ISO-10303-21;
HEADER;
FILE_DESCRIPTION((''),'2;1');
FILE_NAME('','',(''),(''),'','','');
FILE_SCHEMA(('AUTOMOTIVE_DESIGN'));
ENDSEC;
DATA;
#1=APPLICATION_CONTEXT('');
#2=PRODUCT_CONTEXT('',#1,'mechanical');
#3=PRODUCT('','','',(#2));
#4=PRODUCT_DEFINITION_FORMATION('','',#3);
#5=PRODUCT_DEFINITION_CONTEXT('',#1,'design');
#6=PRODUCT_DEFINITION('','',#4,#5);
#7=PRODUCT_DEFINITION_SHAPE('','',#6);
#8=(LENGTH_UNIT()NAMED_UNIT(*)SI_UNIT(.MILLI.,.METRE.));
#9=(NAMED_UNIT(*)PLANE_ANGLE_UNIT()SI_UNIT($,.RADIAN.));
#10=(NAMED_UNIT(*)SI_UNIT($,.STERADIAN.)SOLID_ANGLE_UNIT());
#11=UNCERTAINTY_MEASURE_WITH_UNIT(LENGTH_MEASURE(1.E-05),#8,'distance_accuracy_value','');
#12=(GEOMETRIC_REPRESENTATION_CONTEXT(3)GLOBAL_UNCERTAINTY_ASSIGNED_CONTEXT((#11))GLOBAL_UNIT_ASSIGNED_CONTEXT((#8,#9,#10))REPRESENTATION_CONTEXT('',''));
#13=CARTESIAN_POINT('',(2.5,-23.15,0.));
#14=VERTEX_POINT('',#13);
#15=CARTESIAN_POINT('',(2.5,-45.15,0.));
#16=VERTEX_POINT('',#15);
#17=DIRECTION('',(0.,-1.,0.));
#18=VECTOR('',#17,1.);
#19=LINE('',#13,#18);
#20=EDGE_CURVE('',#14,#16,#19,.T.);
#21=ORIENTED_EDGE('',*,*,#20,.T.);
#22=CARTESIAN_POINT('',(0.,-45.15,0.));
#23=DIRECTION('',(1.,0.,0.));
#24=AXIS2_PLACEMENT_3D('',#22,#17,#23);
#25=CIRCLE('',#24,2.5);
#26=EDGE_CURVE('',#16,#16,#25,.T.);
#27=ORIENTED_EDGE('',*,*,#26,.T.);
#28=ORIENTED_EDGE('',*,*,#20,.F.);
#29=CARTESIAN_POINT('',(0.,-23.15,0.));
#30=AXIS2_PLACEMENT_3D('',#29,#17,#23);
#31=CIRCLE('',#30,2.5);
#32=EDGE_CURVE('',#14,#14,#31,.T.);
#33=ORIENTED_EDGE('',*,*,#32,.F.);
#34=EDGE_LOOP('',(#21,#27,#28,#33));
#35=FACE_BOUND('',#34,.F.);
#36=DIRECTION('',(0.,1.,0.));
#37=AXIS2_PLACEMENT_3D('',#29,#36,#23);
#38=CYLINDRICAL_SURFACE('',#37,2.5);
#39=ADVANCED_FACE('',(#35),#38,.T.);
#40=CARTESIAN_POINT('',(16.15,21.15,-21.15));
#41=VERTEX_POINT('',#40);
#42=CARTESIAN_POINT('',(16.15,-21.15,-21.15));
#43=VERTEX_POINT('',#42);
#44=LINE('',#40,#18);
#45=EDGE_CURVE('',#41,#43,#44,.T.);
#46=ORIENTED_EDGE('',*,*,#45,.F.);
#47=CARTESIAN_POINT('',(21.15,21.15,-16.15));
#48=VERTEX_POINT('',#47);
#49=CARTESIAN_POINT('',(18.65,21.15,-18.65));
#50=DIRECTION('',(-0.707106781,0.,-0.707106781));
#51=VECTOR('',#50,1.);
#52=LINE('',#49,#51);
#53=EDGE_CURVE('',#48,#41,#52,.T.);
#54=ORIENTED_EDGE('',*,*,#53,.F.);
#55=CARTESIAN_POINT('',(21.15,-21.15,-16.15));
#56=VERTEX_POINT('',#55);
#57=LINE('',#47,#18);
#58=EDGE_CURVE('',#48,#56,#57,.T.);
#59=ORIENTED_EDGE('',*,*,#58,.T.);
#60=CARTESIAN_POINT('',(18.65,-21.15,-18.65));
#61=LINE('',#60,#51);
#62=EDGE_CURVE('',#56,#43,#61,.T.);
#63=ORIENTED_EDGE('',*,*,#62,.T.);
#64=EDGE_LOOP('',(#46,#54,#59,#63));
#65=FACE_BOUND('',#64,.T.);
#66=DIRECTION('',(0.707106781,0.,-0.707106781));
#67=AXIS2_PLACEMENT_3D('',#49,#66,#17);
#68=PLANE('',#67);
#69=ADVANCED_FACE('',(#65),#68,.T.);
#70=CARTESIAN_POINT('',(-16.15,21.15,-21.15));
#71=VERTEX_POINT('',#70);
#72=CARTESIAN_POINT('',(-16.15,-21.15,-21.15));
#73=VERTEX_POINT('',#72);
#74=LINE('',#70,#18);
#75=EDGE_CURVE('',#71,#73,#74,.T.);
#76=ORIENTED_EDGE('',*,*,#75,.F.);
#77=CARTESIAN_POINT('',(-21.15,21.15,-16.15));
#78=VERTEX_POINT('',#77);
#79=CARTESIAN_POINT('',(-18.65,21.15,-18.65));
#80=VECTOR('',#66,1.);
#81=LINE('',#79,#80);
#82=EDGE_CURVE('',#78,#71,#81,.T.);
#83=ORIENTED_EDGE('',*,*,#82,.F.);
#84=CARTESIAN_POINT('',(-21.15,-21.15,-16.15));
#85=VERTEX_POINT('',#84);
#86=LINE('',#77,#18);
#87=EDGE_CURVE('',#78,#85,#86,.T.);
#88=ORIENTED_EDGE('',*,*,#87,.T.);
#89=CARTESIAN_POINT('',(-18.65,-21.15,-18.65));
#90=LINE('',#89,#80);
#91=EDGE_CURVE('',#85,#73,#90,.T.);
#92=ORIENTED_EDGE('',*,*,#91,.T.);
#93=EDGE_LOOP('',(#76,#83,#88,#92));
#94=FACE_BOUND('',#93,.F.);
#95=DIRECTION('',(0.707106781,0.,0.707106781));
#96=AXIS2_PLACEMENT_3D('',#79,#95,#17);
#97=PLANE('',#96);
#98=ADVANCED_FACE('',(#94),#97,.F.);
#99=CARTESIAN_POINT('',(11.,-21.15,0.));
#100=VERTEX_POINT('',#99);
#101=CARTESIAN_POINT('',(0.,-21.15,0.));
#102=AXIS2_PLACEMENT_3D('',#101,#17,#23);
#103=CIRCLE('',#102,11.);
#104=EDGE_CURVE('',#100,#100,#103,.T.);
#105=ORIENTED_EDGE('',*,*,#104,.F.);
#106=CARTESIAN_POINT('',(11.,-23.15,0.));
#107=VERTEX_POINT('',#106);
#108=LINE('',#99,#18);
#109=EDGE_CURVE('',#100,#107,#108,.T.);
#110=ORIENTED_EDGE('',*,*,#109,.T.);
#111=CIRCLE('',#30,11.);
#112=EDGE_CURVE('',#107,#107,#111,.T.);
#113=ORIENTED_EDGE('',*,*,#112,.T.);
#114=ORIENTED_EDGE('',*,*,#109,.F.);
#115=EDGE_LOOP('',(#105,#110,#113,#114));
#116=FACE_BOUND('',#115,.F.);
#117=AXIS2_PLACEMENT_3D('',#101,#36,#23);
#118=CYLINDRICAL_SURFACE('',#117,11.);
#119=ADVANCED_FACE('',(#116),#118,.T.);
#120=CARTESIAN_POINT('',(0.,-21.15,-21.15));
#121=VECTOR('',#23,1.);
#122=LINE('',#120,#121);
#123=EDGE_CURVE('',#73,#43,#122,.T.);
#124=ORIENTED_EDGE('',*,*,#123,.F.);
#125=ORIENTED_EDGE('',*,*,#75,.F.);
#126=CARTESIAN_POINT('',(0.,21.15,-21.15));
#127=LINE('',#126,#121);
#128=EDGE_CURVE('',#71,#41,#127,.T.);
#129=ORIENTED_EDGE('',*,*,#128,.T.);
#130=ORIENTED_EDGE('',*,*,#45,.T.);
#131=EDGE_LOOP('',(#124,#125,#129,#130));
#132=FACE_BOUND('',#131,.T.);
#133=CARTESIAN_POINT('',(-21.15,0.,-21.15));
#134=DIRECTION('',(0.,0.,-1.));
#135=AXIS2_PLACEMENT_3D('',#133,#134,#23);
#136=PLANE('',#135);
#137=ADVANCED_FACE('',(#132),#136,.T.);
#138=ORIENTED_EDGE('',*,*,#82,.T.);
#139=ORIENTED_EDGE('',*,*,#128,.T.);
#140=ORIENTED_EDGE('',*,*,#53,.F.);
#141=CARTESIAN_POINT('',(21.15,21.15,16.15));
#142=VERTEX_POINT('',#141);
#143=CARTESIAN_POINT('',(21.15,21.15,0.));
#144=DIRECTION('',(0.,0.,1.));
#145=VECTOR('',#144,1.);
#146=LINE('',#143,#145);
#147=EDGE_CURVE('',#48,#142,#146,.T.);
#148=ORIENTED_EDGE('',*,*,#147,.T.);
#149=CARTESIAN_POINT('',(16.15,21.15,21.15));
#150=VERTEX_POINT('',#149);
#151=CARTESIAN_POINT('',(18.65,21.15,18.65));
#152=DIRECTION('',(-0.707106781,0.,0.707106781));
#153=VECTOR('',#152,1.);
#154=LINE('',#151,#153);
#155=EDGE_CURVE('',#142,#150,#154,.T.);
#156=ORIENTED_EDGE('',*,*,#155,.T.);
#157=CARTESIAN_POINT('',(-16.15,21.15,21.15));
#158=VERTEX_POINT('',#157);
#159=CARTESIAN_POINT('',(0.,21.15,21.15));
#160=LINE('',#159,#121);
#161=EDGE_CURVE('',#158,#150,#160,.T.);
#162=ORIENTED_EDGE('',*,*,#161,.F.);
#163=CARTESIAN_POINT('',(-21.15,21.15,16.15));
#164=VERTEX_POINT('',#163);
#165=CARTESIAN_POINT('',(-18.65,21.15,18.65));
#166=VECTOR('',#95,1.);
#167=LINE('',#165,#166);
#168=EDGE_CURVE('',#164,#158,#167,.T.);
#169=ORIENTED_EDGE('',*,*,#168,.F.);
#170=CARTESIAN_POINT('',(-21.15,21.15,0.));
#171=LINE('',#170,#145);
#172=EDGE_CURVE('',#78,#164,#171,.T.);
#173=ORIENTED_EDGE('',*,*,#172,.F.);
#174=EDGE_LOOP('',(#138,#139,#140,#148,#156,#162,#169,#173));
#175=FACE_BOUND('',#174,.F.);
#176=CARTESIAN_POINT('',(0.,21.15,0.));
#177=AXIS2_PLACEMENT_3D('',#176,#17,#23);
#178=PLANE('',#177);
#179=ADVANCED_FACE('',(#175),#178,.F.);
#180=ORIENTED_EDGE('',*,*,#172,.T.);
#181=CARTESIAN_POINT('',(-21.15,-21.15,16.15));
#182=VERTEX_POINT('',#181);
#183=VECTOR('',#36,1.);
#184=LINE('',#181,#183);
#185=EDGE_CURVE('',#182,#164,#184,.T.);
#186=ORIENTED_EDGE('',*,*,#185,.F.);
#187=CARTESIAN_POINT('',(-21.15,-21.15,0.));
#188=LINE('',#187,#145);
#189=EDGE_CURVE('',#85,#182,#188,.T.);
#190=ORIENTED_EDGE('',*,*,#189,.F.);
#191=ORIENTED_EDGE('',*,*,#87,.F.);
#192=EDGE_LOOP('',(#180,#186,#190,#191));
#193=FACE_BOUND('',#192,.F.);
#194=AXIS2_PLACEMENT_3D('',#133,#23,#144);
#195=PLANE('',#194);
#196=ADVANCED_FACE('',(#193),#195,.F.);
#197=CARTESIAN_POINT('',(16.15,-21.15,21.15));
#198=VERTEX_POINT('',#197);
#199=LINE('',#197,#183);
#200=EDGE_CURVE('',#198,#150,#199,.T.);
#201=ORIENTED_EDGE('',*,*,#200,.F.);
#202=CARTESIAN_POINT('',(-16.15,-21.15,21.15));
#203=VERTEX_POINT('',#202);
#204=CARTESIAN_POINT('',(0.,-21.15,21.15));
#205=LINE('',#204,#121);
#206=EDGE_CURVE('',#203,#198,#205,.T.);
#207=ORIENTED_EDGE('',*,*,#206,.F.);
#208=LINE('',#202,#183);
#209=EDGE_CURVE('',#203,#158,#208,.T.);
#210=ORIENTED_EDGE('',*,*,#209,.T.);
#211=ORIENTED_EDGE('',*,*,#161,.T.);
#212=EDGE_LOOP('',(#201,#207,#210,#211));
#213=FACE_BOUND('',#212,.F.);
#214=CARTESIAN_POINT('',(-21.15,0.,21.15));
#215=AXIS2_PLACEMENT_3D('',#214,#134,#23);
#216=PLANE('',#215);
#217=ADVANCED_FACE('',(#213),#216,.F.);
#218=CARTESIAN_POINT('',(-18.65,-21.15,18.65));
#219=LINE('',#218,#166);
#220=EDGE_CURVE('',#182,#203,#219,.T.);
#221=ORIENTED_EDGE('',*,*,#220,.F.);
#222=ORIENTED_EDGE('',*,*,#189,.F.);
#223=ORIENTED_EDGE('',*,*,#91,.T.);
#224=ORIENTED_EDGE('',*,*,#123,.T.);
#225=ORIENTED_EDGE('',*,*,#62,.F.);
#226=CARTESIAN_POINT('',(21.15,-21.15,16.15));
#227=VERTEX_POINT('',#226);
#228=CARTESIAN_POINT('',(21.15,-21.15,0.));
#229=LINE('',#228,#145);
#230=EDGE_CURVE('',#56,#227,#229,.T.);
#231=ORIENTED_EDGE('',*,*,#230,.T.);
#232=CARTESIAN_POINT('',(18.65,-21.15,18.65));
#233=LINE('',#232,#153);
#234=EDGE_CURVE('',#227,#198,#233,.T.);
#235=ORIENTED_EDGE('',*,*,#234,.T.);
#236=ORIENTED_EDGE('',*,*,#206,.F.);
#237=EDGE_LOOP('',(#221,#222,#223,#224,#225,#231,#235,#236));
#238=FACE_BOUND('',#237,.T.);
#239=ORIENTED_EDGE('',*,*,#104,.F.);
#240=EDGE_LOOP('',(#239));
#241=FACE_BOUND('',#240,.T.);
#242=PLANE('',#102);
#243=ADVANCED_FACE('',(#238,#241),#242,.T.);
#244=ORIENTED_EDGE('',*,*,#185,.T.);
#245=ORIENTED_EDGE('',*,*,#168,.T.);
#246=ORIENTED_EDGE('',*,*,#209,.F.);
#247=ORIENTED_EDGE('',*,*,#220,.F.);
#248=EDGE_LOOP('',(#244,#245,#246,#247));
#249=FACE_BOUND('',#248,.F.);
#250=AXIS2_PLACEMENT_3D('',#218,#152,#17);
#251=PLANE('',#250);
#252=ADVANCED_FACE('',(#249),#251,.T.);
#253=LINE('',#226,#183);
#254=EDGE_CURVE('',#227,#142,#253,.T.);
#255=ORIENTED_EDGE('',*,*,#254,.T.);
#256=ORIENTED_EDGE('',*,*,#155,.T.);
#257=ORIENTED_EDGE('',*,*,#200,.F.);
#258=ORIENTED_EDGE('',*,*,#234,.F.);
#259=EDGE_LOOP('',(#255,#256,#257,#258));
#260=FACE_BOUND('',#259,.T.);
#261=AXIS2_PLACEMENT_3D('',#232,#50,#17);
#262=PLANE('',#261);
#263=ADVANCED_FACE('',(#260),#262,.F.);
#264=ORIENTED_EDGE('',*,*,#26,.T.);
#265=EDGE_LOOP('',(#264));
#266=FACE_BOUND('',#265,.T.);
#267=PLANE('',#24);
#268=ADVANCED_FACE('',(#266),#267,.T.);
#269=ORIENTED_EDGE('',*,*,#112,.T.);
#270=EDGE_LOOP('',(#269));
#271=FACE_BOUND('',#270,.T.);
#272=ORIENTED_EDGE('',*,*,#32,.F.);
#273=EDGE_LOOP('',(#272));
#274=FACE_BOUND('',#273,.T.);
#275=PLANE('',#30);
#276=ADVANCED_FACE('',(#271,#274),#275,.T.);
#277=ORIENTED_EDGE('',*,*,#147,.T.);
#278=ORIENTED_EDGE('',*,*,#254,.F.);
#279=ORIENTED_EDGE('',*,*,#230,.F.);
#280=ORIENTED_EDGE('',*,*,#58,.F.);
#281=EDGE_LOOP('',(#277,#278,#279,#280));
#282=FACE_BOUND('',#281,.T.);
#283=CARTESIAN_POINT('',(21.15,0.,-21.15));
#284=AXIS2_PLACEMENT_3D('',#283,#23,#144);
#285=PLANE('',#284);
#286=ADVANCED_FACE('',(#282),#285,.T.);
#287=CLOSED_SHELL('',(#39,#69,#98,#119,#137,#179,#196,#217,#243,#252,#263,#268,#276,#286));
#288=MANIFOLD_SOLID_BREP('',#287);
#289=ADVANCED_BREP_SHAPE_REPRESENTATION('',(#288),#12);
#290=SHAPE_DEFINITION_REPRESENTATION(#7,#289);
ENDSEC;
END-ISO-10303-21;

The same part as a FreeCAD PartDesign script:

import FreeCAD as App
import Part
import Sketcher


def edges_at(feature, points):
    """Names of the edges that pass closest to the given points."""
    edges = feature.Shape.Edges
    near = lambda p: min(range(len(edges)), key=lambda i: edges[i].distToShape(Part.Vertex(*p))[0])
    return sorted({f"Edge{near(p) + 1}" for p in points})

doc = App.newDocument("Part")
params = doc.addObject("Spreadsheet::Sheet", "Params")
for row, (alias, value) in enumerate([
    ("sketch1_width", "42.3 mm"),
    ("pad1_length", "42.3 mm"),
    ("chamfer_size", "5 mm"),
    ("sketch2_diameter", "22 mm"),
    ("pad2_length", "2 mm"),
    ("sketch3_diameter", "5 mm"),
    ("pad3_length", "22 mm"),
], start=1):
    params.set(f"A{row}", alias)
    params.set(f"B{row}", "=" + value)
    params.setAlias(f"B{row}", alias)

body = doc.addObject("PartDesign::Body", "Body")

sketch1 = body.newObject("Sketcher::SketchObject", "Sketch")
sketch1.AttachmentSupport = (doc.getObject("XZ_Plane"), [""])
sketch1.MapMode = "FlatFace"
sketch1.addGeometry(Part.LineSegment(App.Vector(-21.15, 21.15, 0), App.Vector(-21.15, -21.15, 0)), False)
sketch1.addGeometry(Part.LineSegment(App.Vector(-21.15, -21.15, 0), App.Vector(21.15, -21.15, 0)), False)
sketch1.addGeometry(Part.LineSegment(App.Vector(21.15, -21.15, 0), App.Vector(21.15, 21.15, 0)), False)
sketch1.addGeometry(Part.LineSegment(App.Vector(21.15, 21.15, 0), App.Vector(-21.15, 21.15, 0)), False)
sketch1.addConstraint(Sketcher.Constraint("Coincident", 0, 2, 1, 1))
sketch1.addConstraint(Sketcher.Constraint("Coincident", 1, 2, 2, 1))
sketch1.addConstraint(Sketcher.Constraint("Coincident", 2, 2, 3, 1))
sketch1.addConstraint(Sketcher.Constraint("Coincident", 3, 2, 0, 1))
sketch1.addConstraint(Sketcher.Constraint("Vertical", 0))
sketch1.addConstraint(Sketcher.Constraint("Horizontal", 1))
sketch1.addConstraint(Sketcher.Constraint("Vertical", 2))
sketch1.addConstraint(Sketcher.Constraint("Horizontal", 3))
sketch1.addConstraint(Sketcher.Constraint("Symmetric", 0, 2, 2, 2, -1, 1))
sketch1.addConstraint(Sketcher.Constraint("Equal", 3, 0))
sketch1.addConstraint(Sketcher.Constraint("DistanceX", 1, 1, 1, 2, 42.3))
sketch1.setExpression("Constraints[10]", "Params.sketch1_width")
pad1 = body.newObject("PartDesign::Pad", "Pad")
pad1.Profile = sketch1
pad1.setExpression("Length", "Params.pad1_length")
pad1.Midplane = True
doc.recompute()

chamfer = body.newObject("PartDesign::Chamfer", "Chamfer")
chamfer.Base = (pad1, edges_at(pad1, [
    (-21.15, 0, 21.15),
    (21.15, 0, 21.15),
    (-21.15, 0, -21.15),
    (21.15, 0, -21.15),
]))
chamfer.setExpression("Size", "Params.chamfer_size")

sketch2 = body.newObject("Sketcher::SketchObject", "Sketch001")
sketch2.AttachmentSupport = (doc.getObject("XZ_Plane"), [""])
sketch2.MapMode = "FlatFace"
sketch2.AttachmentOffset = App.Placement(App.Vector(0, 0, 21.15), App.Rotation())
sketch2.addGeometry(Part.Circle(App.Vector(0, 0, 0), App.Vector(0, 0, 1), 11), False)
sketch2.addConstraint(Sketcher.Constraint("Coincident", 0, 3, -1, 1))
sketch2.addConstraint(Sketcher.Constraint("Diameter", 0, 22.0))
sketch2.setExpression("Constraints[1]", "Params.sketch2_diameter")
pad2 = body.newObject("PartDesign::Pad", "Pad001")
pad2.Profile = sketch2
pad2.setExpression("Length", "Params.pad2_length")

sketch3 = body.newObject("Sketcher::SketchObject", "Sketch002")
sketch3.AttachmentSupport = (doc.getObject("XZ_Plane"), [""])
sketch3.MapMode = "FlatFace"
sketch3.AttachmentOffset = App.Placement(App.Vector(0, 0, 23.15), App.Rotation())
sketch3.addGeometry(Part.Circle(App.Vector(0, 0, 0), App.Vector(0, 0, 1), 2.5), False)
sketch3.addConstraint(Sketcher.Constraint("Coincident", 0, 3, -1, 1))
sketch3.addConstraint(Sketcher.Constraint("Diameter", 0, 5.0))
sketch3.setExpression("Constraints[1]", "Params.sketch3_diameter")
pad3 = body.newObject("PartDesign::Pad", "Pad002")
pad3.Profile = sketch3
pad3.setExpression("Length", "Params.pad3_length")

doc.recompute()
